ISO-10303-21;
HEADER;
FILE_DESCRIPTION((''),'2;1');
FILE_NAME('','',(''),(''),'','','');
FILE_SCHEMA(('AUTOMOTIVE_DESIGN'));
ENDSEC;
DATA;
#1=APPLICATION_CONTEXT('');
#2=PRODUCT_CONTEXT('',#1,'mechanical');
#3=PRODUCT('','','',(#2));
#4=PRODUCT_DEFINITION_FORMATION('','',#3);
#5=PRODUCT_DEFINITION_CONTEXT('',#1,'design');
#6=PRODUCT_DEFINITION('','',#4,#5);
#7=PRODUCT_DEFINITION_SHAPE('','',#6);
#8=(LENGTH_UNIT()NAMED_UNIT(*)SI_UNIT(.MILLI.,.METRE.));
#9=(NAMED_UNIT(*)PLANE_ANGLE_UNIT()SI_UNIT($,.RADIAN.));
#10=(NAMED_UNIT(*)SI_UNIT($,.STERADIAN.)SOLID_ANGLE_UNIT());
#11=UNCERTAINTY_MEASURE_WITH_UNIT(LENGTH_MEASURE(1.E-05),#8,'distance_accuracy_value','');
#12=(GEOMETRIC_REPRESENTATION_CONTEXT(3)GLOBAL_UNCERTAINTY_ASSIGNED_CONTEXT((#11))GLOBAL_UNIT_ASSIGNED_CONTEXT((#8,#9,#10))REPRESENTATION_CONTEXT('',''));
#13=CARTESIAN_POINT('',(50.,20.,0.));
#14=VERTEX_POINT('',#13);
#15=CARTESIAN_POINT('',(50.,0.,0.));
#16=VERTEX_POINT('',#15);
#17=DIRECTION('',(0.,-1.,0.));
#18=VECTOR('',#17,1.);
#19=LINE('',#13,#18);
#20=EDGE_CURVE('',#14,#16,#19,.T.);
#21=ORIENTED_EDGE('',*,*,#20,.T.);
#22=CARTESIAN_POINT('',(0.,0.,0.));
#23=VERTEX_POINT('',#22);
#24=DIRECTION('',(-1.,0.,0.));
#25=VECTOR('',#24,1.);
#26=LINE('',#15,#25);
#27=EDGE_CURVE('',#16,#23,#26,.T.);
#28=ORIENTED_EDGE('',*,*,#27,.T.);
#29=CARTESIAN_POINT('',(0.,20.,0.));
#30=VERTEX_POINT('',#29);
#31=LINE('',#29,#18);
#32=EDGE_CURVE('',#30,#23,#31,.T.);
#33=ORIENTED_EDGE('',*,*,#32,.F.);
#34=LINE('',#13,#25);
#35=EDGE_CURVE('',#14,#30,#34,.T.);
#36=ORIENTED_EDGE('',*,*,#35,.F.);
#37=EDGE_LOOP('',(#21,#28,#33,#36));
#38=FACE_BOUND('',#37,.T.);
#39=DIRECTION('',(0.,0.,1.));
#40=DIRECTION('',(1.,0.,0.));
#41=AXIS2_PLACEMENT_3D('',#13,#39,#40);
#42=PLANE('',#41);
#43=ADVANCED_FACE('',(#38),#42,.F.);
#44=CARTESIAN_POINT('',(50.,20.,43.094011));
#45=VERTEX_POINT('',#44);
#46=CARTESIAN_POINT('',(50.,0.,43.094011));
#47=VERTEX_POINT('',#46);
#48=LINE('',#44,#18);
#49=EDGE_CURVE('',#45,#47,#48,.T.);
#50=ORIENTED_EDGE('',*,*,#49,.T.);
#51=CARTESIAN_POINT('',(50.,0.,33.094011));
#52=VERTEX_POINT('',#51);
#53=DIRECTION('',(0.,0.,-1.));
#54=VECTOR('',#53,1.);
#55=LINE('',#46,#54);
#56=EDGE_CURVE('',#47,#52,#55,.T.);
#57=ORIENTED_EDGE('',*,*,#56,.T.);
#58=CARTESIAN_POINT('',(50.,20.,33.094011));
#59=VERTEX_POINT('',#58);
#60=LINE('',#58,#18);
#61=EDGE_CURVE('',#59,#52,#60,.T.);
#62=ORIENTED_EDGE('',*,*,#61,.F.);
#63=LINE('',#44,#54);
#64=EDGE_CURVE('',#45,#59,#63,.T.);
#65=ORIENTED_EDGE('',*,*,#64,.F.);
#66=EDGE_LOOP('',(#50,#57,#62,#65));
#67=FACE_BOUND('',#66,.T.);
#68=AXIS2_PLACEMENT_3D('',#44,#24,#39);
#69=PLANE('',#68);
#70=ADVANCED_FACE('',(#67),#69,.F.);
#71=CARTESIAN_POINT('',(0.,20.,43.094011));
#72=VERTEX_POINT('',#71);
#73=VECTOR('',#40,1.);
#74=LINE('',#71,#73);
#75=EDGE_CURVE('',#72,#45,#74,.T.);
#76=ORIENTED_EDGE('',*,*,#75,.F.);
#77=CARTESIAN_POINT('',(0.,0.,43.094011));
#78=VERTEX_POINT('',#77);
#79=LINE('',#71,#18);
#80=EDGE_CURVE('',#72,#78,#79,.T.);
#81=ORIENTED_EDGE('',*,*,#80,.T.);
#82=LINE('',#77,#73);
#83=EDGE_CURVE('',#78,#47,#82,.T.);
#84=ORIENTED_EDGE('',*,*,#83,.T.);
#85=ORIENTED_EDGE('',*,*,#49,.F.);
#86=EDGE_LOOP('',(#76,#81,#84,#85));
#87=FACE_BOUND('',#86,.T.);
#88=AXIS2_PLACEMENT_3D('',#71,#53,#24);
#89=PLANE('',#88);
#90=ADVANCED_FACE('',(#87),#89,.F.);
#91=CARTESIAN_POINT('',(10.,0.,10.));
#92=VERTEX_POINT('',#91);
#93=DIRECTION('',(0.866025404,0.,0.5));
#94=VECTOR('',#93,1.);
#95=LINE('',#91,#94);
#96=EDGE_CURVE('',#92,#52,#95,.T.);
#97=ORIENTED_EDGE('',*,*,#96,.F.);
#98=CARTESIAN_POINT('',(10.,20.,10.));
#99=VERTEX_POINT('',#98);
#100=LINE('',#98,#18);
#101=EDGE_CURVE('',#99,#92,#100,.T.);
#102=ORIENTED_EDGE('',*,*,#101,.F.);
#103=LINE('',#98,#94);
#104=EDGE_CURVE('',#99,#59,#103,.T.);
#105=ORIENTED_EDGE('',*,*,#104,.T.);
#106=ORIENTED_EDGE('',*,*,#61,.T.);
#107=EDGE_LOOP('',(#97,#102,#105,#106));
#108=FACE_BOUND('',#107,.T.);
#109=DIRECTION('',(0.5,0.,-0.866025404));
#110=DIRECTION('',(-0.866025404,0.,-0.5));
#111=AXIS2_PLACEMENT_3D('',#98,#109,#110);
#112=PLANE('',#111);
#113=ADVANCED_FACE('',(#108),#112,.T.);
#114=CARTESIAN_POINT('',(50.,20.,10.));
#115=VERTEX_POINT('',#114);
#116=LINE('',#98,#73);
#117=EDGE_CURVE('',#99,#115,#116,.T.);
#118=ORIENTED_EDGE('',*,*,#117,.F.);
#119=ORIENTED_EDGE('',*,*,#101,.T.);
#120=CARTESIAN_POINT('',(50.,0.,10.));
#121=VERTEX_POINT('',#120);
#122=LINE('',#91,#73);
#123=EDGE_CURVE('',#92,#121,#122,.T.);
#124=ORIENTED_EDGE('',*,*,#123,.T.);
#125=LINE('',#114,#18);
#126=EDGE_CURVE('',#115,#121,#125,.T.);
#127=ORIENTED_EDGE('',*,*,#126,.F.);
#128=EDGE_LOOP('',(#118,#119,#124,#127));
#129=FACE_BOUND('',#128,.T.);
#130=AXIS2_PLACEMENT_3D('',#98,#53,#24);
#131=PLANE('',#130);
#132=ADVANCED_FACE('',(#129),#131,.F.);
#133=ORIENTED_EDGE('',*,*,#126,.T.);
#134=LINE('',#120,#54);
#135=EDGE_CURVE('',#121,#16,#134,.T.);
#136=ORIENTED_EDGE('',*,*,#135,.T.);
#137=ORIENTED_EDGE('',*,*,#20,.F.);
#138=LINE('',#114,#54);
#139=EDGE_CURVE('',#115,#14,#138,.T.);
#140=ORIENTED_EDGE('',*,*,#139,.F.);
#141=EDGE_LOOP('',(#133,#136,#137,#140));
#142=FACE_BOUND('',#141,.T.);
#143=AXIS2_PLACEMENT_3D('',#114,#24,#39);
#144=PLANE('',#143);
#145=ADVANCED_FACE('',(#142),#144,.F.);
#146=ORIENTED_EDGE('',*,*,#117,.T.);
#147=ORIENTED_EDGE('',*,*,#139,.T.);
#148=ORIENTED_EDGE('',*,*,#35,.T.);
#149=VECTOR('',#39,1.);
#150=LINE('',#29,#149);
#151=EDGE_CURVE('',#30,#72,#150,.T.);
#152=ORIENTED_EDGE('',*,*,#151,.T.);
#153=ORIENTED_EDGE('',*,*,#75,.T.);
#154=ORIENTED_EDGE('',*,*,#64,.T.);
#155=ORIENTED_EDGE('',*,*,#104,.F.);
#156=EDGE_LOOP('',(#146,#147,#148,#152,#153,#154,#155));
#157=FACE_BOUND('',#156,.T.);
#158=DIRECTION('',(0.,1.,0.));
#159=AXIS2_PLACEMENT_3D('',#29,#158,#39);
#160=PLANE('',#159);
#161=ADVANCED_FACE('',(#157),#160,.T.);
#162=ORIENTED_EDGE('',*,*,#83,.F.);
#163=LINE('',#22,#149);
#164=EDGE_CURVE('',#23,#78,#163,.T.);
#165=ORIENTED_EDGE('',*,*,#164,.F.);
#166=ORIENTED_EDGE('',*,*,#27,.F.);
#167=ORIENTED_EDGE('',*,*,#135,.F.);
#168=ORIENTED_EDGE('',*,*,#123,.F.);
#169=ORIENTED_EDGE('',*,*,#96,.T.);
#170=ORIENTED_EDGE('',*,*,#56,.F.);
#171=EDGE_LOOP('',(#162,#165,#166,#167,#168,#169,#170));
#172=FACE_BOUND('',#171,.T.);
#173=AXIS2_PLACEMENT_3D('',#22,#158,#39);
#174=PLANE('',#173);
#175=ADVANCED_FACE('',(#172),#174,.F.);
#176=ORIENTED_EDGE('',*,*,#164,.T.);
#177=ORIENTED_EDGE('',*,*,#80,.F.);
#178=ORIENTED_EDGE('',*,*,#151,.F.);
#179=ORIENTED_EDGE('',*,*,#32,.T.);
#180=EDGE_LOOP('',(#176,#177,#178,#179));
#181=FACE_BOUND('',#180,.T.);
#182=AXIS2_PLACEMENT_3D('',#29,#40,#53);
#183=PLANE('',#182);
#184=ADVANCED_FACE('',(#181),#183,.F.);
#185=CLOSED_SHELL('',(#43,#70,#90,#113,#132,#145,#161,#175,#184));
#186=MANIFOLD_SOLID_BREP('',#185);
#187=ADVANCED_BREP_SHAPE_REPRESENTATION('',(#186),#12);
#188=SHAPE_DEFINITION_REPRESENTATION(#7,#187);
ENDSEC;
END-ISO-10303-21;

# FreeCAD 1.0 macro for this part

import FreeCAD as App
import Part
import Sketcher
from FreeCAD import Vector
Q = App.Units.Quantity

doc = App.newDocument("Part")
body = doc.addObject("PartDesign::Body", "Body")

# Sketch on XZ plane
sketch1 = doc.addObject("Sketcher::SketchObject", "Sketch")
body.addObject(sketch1)
sketch1.AttachmentSupport = (doc.XZ_Plane, [""])
sketch1.MapMode = "FlatFace"
sketch1.addGeometry(Part.LineSegment(Vector(0, 0, 0), Vector(0, 43, 0)), False)
sketch1.addGeometry(Part.LineSegment(Vector(0, 43, 0), Vector(50, 43, 0)), False)
sketch1.addGeometry(Part.LineSegment(Vector(50, 43, 0), Vector(50, 33, 0)), False)
sketch1.addGeometry(Part.LineSegment(Vector(50, 33, 0), Vector(10, 10, 0)), False)
sketch1.addGeometry(Part.LineSegment(Vector(10, 10, 0), Vector(50, 10, 0)), False)
sketch1.addGeometry(Part.LineSegment(Vector(50, 10, 0), Vector(50, 0, 0)), False)
sketch1.addGeometry(Part.LineSegment(Vector(50, 0, 0), Vector(0, 0, 0)), False)
sketch1.addConstraint(Sketcher.Constraint("Coincident", 0, 2, 1, 1))
sketch1.addConstraint(Sketcher.Constraint("Coincident", 1, 2, 2, 1))
sketch1.addConstraint(Sketcher.Constraint("Coincident", 2, 2, 3, 1))
sketch1.addConstraint(Sketcher.Constraint("Coincident", 3, 2, 4, 1))
sketch1.addConstraint(Sketcher.Constraint("Coincident", 4, 2, 5, 1))
sketch1.addConstraint(Sketcher.Constraint("Coincident", 5, 2, 6, 1))
sketch1.addConstraint(Sketcher.Constraint("Coincident", 6, 2, 0, 1))
sketch1.addConstraint(Sketcher.Constraint("Vertical", 0))
sketch1.addConstraint(Sketcher.Constraint("Horizontal", 1))
sketch1.addConstraint(Sketcher.Constraint("Vertical", 2))
sketch1.addConstraint(Sketcher.Constraint("Horizontal", 4))
sketch1.addConstraint(Sketcher.Constraint("Vertical", 5))
sketch1.addConstraint(Sketcher.Constraint("Horizontal", 6))
sketch1.addConstraint(Sketcher.Constraint("Coincident", 6, 2, -1, 1))
sketch1.addConstraint(Sketcher.Constraint("Vertical", 2, 2, 4, 2))
sketch1.addConstraint(Sketcher.Constraint("Equal", 2, 5))
sketch1.addConstraint(Sketcher.Constraint("DistanceX", 1, 1, 1, 2, 50.0))
sketch1.addConstraint(Sketcher.Constraint("DistanceX", 4, 1, 4, 2, 40.0))
sketch1.addConstraint(Sketcher.Constraint("DistanceY", 2, 2, 2, 1, 10.0))
sketch1.addConstraint(Sketcher.Constraint("Angle", 3, Q("-150 deg")))
pad1 = doc.addObject("PartDesign::Pad", "Pad")
body.addObject(pad1)
pad1.Profile = sketch1
pad1.Length = 20
pad1.Reversed = True

doc.recompute()
